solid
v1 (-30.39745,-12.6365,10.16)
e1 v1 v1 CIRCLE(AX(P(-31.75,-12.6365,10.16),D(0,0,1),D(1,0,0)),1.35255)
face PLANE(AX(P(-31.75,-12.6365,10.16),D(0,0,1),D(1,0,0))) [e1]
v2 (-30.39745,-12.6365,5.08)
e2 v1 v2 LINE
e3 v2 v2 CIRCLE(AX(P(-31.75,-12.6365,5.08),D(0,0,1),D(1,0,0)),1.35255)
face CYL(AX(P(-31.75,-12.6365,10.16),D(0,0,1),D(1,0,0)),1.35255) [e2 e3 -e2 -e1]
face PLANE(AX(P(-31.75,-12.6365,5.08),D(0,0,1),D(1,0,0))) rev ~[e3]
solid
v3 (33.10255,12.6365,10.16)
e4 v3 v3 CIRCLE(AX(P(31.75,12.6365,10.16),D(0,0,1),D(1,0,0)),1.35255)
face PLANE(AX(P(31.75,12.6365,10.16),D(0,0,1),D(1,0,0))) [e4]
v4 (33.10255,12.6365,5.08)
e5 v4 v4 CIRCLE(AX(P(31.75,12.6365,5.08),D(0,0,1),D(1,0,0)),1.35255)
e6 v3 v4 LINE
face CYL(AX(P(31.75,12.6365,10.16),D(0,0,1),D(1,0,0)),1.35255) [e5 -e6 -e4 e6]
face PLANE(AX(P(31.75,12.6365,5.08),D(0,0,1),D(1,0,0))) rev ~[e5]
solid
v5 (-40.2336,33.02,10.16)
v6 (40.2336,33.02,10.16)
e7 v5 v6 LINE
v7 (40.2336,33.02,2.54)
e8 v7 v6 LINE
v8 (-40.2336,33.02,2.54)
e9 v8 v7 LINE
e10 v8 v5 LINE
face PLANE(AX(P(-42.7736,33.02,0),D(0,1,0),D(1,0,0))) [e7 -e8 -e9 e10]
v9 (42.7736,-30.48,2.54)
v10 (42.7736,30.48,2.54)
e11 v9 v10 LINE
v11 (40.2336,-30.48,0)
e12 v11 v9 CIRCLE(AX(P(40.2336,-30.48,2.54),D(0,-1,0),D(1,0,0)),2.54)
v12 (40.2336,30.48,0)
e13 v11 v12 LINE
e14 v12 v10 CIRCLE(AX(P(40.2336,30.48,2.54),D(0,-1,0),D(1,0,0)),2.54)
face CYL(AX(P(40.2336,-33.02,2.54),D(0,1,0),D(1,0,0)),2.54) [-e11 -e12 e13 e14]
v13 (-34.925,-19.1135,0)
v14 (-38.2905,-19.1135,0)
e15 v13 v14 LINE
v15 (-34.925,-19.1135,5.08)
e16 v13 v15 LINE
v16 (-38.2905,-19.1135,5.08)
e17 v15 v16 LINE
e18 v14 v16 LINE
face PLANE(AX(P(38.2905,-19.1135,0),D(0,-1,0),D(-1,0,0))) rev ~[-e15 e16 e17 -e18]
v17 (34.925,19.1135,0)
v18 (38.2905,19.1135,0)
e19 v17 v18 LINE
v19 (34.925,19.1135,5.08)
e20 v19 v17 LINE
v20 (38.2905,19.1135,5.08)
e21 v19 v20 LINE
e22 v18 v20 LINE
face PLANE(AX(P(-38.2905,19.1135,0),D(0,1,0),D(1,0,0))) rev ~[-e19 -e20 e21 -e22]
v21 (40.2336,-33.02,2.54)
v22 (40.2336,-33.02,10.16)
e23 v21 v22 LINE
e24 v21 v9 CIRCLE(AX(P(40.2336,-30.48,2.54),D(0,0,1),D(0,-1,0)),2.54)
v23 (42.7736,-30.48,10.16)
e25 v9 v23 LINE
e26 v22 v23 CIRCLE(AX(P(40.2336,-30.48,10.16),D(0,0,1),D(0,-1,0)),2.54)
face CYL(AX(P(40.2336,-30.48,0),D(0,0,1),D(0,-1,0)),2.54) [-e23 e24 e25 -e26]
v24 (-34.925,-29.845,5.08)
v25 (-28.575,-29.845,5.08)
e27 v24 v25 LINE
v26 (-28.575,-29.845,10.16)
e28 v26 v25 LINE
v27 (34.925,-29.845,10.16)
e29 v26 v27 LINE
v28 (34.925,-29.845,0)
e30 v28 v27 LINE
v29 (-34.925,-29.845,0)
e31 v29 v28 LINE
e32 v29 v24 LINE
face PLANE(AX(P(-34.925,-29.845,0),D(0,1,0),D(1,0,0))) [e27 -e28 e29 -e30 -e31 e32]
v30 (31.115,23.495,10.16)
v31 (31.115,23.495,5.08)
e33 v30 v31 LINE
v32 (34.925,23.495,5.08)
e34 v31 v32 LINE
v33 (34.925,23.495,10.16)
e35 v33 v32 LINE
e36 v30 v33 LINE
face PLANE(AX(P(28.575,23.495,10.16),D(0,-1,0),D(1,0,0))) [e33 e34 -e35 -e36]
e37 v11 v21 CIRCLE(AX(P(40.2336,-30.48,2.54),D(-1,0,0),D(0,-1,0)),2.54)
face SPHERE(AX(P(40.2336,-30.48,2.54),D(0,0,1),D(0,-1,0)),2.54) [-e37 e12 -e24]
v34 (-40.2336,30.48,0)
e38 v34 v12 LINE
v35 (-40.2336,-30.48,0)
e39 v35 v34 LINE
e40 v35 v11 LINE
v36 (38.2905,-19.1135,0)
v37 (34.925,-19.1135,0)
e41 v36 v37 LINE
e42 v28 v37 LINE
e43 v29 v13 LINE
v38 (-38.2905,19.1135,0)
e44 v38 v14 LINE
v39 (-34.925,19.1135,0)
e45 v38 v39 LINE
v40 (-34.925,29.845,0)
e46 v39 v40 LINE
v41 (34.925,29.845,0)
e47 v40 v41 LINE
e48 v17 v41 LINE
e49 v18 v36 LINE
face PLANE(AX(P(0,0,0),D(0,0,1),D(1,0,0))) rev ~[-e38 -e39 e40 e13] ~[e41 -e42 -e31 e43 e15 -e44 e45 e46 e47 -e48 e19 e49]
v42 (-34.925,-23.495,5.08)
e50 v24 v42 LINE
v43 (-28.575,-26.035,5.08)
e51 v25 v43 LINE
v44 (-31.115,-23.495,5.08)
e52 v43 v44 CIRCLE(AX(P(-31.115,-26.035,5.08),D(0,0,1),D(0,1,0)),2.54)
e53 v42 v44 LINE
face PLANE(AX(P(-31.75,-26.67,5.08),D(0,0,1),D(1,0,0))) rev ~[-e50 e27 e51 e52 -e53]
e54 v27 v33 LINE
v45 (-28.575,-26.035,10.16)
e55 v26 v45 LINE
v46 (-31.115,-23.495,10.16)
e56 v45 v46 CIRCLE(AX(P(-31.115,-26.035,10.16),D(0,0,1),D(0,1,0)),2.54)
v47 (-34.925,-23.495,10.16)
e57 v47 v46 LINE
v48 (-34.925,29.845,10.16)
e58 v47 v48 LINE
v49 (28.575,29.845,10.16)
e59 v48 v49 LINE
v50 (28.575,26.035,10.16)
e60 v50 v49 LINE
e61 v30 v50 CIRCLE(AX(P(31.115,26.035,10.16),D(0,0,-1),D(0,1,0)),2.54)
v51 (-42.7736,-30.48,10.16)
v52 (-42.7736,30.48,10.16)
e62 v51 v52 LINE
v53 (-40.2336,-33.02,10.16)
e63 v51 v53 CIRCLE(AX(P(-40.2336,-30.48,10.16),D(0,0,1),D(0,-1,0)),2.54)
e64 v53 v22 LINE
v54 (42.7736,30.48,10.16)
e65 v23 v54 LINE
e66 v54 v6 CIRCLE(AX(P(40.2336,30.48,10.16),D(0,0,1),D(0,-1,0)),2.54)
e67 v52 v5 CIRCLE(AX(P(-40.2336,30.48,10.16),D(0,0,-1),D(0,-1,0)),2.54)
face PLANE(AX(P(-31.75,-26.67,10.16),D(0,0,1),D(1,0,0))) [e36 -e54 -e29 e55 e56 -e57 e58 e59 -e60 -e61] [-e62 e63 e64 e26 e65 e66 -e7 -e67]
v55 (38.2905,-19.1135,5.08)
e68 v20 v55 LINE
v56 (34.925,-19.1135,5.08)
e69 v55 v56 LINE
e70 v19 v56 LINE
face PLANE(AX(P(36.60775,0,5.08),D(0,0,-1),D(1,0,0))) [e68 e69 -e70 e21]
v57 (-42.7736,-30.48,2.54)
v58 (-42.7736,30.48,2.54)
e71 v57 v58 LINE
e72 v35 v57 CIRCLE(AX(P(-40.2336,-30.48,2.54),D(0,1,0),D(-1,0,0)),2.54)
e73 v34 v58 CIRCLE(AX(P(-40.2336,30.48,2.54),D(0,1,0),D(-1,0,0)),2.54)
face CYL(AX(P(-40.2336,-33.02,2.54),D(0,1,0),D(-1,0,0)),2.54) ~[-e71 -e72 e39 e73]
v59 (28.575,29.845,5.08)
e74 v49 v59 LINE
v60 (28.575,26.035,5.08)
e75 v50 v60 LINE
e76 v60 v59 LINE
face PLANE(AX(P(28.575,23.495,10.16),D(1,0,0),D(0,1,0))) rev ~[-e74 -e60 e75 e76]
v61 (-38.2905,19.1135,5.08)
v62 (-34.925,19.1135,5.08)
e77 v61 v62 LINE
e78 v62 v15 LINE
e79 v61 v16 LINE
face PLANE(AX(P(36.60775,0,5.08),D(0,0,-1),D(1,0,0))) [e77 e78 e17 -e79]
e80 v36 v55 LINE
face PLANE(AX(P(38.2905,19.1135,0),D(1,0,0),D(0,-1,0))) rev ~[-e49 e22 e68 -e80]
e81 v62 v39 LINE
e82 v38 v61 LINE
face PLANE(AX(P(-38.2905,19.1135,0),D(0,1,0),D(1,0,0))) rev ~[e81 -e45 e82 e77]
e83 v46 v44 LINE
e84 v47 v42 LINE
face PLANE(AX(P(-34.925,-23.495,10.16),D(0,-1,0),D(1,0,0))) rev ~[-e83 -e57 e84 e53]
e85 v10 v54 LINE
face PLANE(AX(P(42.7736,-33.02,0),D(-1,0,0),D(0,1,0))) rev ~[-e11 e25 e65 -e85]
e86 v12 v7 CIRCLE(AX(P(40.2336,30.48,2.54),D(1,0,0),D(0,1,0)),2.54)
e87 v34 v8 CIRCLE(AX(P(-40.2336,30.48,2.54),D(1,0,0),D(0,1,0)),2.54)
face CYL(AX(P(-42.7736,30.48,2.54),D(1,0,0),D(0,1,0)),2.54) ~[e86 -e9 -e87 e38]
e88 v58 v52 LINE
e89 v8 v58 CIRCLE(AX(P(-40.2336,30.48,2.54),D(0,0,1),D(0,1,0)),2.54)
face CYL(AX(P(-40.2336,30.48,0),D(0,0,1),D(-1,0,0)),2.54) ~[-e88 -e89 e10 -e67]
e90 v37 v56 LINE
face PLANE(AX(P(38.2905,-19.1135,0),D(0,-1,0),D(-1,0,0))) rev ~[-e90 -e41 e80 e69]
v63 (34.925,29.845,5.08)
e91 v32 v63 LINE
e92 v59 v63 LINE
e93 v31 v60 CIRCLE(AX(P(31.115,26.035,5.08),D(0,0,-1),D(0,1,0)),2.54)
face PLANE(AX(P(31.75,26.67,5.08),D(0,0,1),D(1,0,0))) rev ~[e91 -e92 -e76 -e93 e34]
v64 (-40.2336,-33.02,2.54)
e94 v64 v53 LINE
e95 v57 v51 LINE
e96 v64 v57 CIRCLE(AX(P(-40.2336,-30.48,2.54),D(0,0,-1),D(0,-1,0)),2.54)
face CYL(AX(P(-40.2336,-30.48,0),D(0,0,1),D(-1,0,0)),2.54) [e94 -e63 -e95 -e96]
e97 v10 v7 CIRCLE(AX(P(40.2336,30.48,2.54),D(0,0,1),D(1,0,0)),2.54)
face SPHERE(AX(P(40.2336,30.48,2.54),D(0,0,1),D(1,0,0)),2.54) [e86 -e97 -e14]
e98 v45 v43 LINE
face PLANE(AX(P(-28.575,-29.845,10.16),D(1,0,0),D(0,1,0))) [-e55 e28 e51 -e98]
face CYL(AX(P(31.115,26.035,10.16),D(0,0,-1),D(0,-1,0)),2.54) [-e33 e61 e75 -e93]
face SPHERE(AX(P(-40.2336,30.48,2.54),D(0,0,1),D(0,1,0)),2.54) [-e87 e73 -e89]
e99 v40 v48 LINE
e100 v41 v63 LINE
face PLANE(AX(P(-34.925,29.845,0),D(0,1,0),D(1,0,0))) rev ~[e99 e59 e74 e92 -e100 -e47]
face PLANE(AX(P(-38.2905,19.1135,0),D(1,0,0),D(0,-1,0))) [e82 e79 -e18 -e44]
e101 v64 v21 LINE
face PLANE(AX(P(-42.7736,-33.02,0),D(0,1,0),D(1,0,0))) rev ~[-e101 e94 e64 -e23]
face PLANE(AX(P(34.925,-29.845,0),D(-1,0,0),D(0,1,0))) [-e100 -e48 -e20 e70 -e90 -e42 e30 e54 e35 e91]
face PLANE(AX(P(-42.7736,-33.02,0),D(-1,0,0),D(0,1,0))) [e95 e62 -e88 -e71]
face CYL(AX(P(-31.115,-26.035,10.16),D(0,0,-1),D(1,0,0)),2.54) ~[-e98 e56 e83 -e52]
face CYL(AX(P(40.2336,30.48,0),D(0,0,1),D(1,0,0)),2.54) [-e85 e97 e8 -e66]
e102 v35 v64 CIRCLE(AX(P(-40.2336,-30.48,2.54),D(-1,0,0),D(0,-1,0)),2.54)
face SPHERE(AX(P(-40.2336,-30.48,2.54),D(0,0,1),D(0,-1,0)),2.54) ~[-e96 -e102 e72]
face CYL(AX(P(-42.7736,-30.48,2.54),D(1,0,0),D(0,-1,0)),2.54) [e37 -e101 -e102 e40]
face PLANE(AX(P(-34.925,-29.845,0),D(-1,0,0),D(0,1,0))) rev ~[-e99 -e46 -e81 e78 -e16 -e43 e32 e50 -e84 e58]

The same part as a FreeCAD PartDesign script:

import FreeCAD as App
import Part
import Sketcher
from FreeCAD import Vector
Q = App.Units.Quantity


def edges_at(feature, points):
    """Names of the edges that pass closest to the given points."""
    edges = feature.Shape.Edges
    near = lambda p: min(range(len(edges)), key=lambda i: edges[i].distToShape(Part.Vertex(*p))[0])
    return sorted({f"Edge{near(p) + 1}" for p in points})

doc = App.newDocument("Part")
body = doc.addObject("PartDesign::Body", "Body")

sketch1 = body.newObject("Sketcher::SketchObject", "Sketch")
sketch1.AttachmentSupport = (doc.getObject("XY_Plane"), [""])
sketch1.MapMode = "FlatFace"
sketch1.addGeometry(Part.LineSegment(Vector(-43, 33, 0), Vector(-43, -33, 0)), False)
sketch1.addGeometry(Part.LineSegment(Vector(-43, -33, 0), Vector(43, -33, 0)), False)
sketch1.addGeometry(Part.LineSegment(Vector(43, -33, 0), Vector(43, 33, 0)), False)
sketch1.addGeometry(Part.LineSegment(Vector(43, 33, 0), Vector(-43, 33, 0)), False)
sketch1.addGeometry(Part.LineSegment(Vector(35, -30, 0), Vector(-35, -30, 0)), False)
sketch1.addGeometry(Part.LineSegment(Vector(-35, -30, 0), Vector(-35, 30, 0)), False)
sketch1.addGeometry(Part.LineSegment(Vector(-35, 30, 0), Vector(35, 30, 0)), False)
sketch1.addGeometry(Part.LineSegment(Vector(35, 30, 0), Vector(35, -30, 0)), False)
sketch1.addConstraint(Sketcher.Constraint("Coincident", 0, 2, 1, 1))
sketch1.addConstraint(Sketcher.Constraint("Coincident", 1, 2, 2, 1))
sketch1.addConstraint(Sketcher.Constraint("Coincident", 2, 2, 3, 1))
sketch1.addConstraint(Sketcher.Constraint("Coincident", 3, 2, 0, 1))
sketch1.addConstraint(Sketcher.Constraint("Coincident", 4, 2, 5, 1))
sketch1.addConstraint(Sketcher.Constraint("Coincident", 5, 2, 6, 1))
sketch1.addConstraint(Sketcher.Constraint("Coincident", 6, 2, 7, 1))
sketch1.addConstraint(Sketcher.Constraint("Coincident", 7, 2, 4, 1))
sketch1.addConstraint(Sketcher.Constraint("Vertical", 0))
sketch1.addConstraint(Sketcher.Constraint("Horizontal", 1))
sketch1.addConstraint(Sketcher.Constraint("Vertical", 2))
sketch1.addConstraint(Sketcher.Constraint("Horizontal", 3))
sketch1.addConstraint(Sketcher.Constraint("Horizontal", 4))
sketch1.addConstraint(Sketcher.Constraint("Vertical", 5))
sketch1.addConstraint(Sketcher.Constraint("Horizontal", 6))
sketch1.addConstraint(Sketcher.Constraint("Vertical", 7))
sketch1.addConstraint(Sketcher.Constraint("Symmetric", 0, 2, 2, 2, -1, 1))
sketch1.addConstraint(Sketcher.Constraint("Symmetric", 4, 2, 6, 2, -1, 1))
sketch1.addConstraint(Sketcher.Constraint("DistanceY", 0, 2, 0, 1, Q("2.6 in")))
sketch1.addConstraint(Sketcher.Constraint("DistanceX", 4, 2, 4, 1, Q("2.75 in")))
sketch1.addConstraint(Sketcher.Constraint("DistanceY", 5, 1, 5, 2, Q("2.35 in")))
sketch1.addConstraint(Sketcher.Constraint("DistanceX", 1, 1, 1, 2, Q("3.368 in")))
pad1 = body.newObject("PartDesign::Pad", "Pad")
pad1.Profile = sketch1
pad1.Length = Q("0.4 in")

sketch2 = body.newObject("Sketcher::SketchObject", "Sketch001")
sketch2.AttachmentSupport = (doc.getObject("XY_Plane"), [""])
sketch2.MapMode = "FlatFace"
sketch2.AttachmentOffset = App.Placement(Vector(0, 0, 0.4 * 25.4), App.Rotation())
sketch2.addGeometry(Part.LineSegment(Vector(-35, -23, 0), Vector(-35, -30, 0)), False)
sketch2.addGeometry(Part.LineSegment(Vector(-35, -30, 0), Vector(-29, -30, 0)), False)
sketch2.addGeometry(Part.LineSegment(Vector(-29, -30, 0), Vector(-29, -23, 0)), False)
sketch2.addGeometry(Part.LineSegment(Vector(-29, -23, 0), Vector(-35, -23, 0)), False)
sketch2.addGeometry(Part.LineSegment(Vector(29, 30, 0), Vector(29, 23, 0)), False)
sketch2.addGeometry(Part.LineSegment(Vector(29, 23, 0), Vector(35, 23, 0)), False)
sketch2.addGeometry(Part.LineSegment(Vector(35, 23, 0), Vector(35, 30, 0)), False)
sketch2.addGeometry(Part.LineSegment(Vector(35, 30, 0), Vector(29, 30, 0)), False)
sketch2.addConstraint(Sketcher.Constraint("Coincident", 0, 2, 1, 1))
sketch2.addConstraint(Sketcher.Constraint("Coincident", 1, 2, 2, 1))
sketch2.addConstraint(Sketcher.Constraint("Coincident", 2, 2, 3, 1))
sketch2.addConstraint(Sketcher.Constraint("Coincident", 3, 2, 0, 1))
sketch2.addConstraint(Sketcher.Constraint("Coincident", 4, 2, 5, 1))
sketch2.addConstraint(Sketcher.Constraint("Coincident", 5, 2, 6, 1))
sketch2.addConstraint(Sketcher.Constraint("Coincident", 6, 2, 7, 1))
sketch2.addConstraint(Sketcher.Constraint("Coincident", 7, 2, 4, 1))
sketch2.addConstraint(Sketcher.Constraint("Vertical", 0))
sketch2.addConstraint(Sketcher.Constraint("Horizontal", 1))
sketch2.addConstraint(Sketcher.Constraint("Vertical", 2))
sketch2.addConstraint(Sketcher.Constraint("Horizontal", 3))
sketch2.addConstraint(Sketcher.Constraint("Vertical", 4))
sketch2.addConstraint(Sketcher.Constraint("Horizontal", 5))
sketch2.addConstraint(Sketcher.Constraint("Vertical", 6))
sketch2.addConstraint(Sketcher.Constraint("Horizontal", 7))
sketch2.addConstraint(Sketcher.Constraint("Symmetric", 2, 2, 4, 2, -1, 1))
sketch2.addConstraint(Sketcher.Constraint("Symmetric", 0, 2, 6, 2, -1, 1))
sketch2.addConstraint(Sketcher.Constraint("Equal", 7, 0))
sketch2.addConstraint(Sketcher.Constraint("DistanceX", 1, 1, 1, 2, Q("0.25 in")))
sketch2.addConstraint(Sketcher.Constraint("DistanceY", 1, 2, 4, 2, Q("2.1 in")))
sketch2.addConstraint(Sketcher.Constraint("DistanceX", 3, 2, 4, 2, Q("2.5 in")))
pad2 = body.newObject("PartDesign::Pad", "Pad001")
pad2.Profile = sketch2
pad2.Length = Q("0.2 in")
pad2.Reversed = True
doc.recompute()

fillet = body.newObject("PartDesign::Fillet", "Fillet")
fillet.Base = (pad2, edges_at(pad2, [(28.575, 23.495, 7.62), (-28.575, -23.495, 7.62)]))
fillet.Radius = Q("0.1 in")

sketch3 = body.newObject("Sketcher::SketchObject", "Sketch002")
sketch3.AttachmentSupport = (doc.getObject("XY_Plane"), [""])
sketch3.MapMode = "FlatFace"
sketch3.addGeometry(Part.LineSegment(Vector(38, 19, 0), Vector(38, -19, 0)), False)
sketch3.addGeometry(Part.LineSegment(Vector(38, -19, 0), Vector(-38, -19, 0)), False)
sketch3.addGeometry(Part.LineSegment(Vector(-38, -19, 0), Vector(-38, 19, 0)), False)
sketch3.addGeometry(Part.LineSegment(Vector(-38, 19, 0), Vector(38, 19, 0)), False)
sketch3.addConstraint(Sketcher.Constraint("Coincident", 0, 2, 1, 1))
sketch3.addConstraint(Sketcher.Constraint("Coincident", 1, 2, 2, 1))
sketch3.addConstraint(Sketcher.Constraint("Coincident", 2, 2, 3, 1))
sketch3.addConstraint(Sketcher.Constraint("Coincident", 3, 2, 0, 1))
sketch3.addConstraint(Sketcher.Constraint("Vertical", 0))
sketch3.addConstraint(Sketcher.Constraint("Horizontal", 1))
sketch3.addConstraint(Sketcher.Constraint("Vertical", 2))
sketch3.addConstraint(Sketcher.Constraint("Horizontal", 3))
sketch3.addConstraint(Sketcher.Constraint("Symmetric", 0, 2, 2, 2, -1, 1))
sketch3.addConstraint(Sketcher.Constraint("DistanceX", 1, 2, 1, 1, Q("3.015 in")))
sketch3.addConstraint(Sketcher.Constraint("DistanceY", 0, 2, 0, 1, Q("1.505 in")))
pocket1 = body.newObject("PartDesign::Pocket", "Pocket")
pocket1.Profile = sketch3
pocket1.Length = Q("0.2 in")
pocket1.Reversed = True
doc.recompute()

fillet2 = body.newObject("PartDesign::Fillet", "Fillet001")
fillet2.Base = (pocket1, edges_at(pocket1, [
    (42.774, -33.02, 5.08),
    (42.774, 33.02, 5.08),
    (-42.774, -33.02, 5.08),
    (-42.774, 33.02, 5.08),
    (0, -33.02, 0),
    (42.774, 0, 0),
    (0, 33.02, 0),
    (-42.774, 0, 0),
]))
fillet2.Radius = Q("0.1 in")
body2 = doc.addObject("PartDesign::Body", "Body001")

sketch4 = body2.newObject("Sketcher::SketchObject", "Sketch003")
sketch4.AttachmentSupport = (doc.getObject("XY_Plane001"), [""])
sketch4.MapMode = "FlatFace"
sketch4.AttachmentOffset = App.Placement(Vector(0, 0, 0.4 * 25.4), App.Rotation())
sketch4.addGeometry(Part.Circle(Vector(-31.8, -12.6, 0), Vector(0, 0, 1), 1.4), False)
sketch4.addConstraint(Sketcher.Constraint("Diameter", 0, Q("0.1065 in")))
sketch4.addConstraint(Sketcher.Constraint("DistanceX", 0, 3, -1, 1, Q("1.25 in")))
sketch4.addConstraint(Sketcher.Constraint("DistanceY", 0, 3, -1, 1, Q("0.4975 in")))
pad3 = body2.newObject("PartDesign::Pad", "Pad002")
pad3.Profile = sketch4
pad3.Length = Q("0.2 in")
pad3.Reversed = True
body3 = doc.addObject("PartDesign::Body", "Body002")

sketch5 = body3.newObject("Sketcher::SketchObject", "Sketch004")
sketch5.AttachmentSupport = (doc.getObject("XY_Plane002"), [""])
sketch5.MapMode = "FlatFace"
sketch5.AttachmentOffset = App.Placement(Vector(0, 0, 0.4 * 25.4), App.Rotation())
sketch5.addGeometry(Part.Circle(Vector(31.8, 12.6, 0), Vector(0, 0, 1), 1.4), False)
sketch5.addConstraint(Sketcher.Constraint("Diameter", 0, Q("0.1065 in")))
sketch5.addConstraint(Sketcher.Constraint("DistanceX", -1, 1, 0, 3, Q("1.25 in")))
sketch5.addConstraint(Sketcher.Constraint("DistanceY", -1, 1, 0, 3, Q("0.4975 in")))
pad4 = body3.newObject("PartDesign::Pad", "Pad003")
pad4.Profile = sketch5
pad4.Length = Q("0.2 in")
pad4.Reversed = True

doc.recompute()
